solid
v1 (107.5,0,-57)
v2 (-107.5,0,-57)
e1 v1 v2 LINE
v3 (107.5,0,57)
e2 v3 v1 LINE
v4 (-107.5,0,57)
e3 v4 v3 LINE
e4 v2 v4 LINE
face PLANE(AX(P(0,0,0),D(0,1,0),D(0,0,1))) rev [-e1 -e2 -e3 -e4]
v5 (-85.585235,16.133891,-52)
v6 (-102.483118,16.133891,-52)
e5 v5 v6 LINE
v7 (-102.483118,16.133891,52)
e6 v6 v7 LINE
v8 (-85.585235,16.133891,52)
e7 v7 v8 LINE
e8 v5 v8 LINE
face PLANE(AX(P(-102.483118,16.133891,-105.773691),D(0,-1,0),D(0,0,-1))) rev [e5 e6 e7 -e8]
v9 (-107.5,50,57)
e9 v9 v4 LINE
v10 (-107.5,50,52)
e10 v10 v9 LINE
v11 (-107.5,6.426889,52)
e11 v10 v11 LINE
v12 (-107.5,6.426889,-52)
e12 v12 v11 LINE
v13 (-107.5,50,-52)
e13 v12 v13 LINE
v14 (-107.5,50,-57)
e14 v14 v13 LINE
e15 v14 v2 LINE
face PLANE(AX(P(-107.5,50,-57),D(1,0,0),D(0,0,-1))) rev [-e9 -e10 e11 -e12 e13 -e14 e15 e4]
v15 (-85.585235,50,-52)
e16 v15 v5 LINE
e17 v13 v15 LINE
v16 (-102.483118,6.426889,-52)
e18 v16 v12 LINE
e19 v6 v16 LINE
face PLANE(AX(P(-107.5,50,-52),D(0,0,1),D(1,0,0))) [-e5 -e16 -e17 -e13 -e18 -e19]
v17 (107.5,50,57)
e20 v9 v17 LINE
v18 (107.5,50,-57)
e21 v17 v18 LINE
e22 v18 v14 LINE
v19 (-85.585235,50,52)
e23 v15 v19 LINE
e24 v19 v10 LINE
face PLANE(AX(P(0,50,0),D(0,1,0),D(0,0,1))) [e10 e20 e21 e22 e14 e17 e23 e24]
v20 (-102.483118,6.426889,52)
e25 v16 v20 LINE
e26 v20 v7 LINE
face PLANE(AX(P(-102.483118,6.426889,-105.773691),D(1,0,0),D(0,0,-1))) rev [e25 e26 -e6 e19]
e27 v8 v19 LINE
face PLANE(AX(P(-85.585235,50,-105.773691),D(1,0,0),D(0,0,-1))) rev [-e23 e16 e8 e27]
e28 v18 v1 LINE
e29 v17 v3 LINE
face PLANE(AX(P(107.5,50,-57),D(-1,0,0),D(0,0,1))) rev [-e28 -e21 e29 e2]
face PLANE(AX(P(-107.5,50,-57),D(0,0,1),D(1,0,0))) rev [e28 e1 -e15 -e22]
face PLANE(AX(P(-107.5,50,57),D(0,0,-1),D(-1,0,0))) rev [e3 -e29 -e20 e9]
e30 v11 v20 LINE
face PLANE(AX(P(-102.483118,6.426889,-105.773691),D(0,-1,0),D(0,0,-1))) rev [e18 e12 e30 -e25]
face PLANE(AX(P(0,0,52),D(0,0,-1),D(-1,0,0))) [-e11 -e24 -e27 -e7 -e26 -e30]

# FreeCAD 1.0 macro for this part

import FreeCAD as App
import Part
import Sketcher


def add_polygon(sketch, points):
    """Adds a closed chain of lines whose ends are joined by coincident constraints."""
    first, n = sketch.GeometryCount, len(points)
    for a, b in zip(points, points[1:] + points[:1]):
        sketch.addGeometry(Part.LineSegment(App.Vector(*a, 0), App.Vector(*b, 0)), False)
    for i in range(n):
        sketch.addConstraint(Sketcher.Constraint("Coincident", first + i, 2, first + (i + 1) % n, 1))

doc = App.newDocument("Part")
body = doc.addObject("PartDesign::Body", "Body")

# Sketch on XZ plane
sketch1 = body.newObject("Sketcher::SketchObject", "Sketch")
sketch1.AttachmentSupport = (doc.getObject("XZ_Plane"), [""])
sketch1.MapMode = "FlatFace"
add_polygon(sketch1, [(-108, -57), (-108, 57), (108, 57), (108, -57)])  # lines 0-3
sketch1.addConstraint([
    Sketcher.Constraint("Vertical", 0),
    Sketcher.Constraint("Horizontal", 1),
    Sketcher.Constraint("Vertical", 2),
    Sketcher.Constraint("Horizontal", 3),
    Sketcher.Constraint("Symmetric", 0, 2, 2, 2, -1, 1),
    Sketcher.Constraint("DistanceX", 1, 1, 1, 2, 215.0),
    Sketcher.Constraint("DistanceY", 0, 1, 0, 2, 114.0),
])
pad1 = body.newObject("PartDesign::Pad", "Pad")
pad1.Profile = sketch1
pad1.Length = 50
pad1.Reversed = True

# Sketch on XY plane
sketch2 = body.newObject("Sketcher::SketchObject", "Sketch001")
sketch2.AttachmentSupport = (doc.getObject("XY_Plane"), [""])
sketch2.MapMode = "FlatFace"
sketch2.AttachmentOffset = App.Placement(App.Vector(0, 0, -52), App.Rotation())
add_polygon(sketch2, [(-86, 50), (-108, 50), (-108, 6), (-102, 6), (-102, 16), (-86, 16)])  # lines 0-5
sketch2.addConstraint([
    Sketcher.Constraint("Horizontal", 0),
    Sketcher.Constraint("Vertical", 1),
    Sketcher.Constraint("Horizontal", 2),
    Sketcher.Constraint("Vertical", 3),
    Sketcher.Constraint("Horizontal", 4),
    Sketcher.Constraint("Vertical", 5),
    Sketcher.Constraint("DistanceY", -1, 1, 0, 2, 50.0),
    Sketcher.Constraint("DistanceX", 0, 2, -1, 1, 107.5),
    Sketcher.Constraint("DistanceY", 3, 1, 3, 2, 9.707002),
    Sketcher.Constraint("DistanceY", 1, 2, 1, 1, 43.573111),
    Sketcher.Constraint("DistanceX", 0, 2, 0, 1, 21.914765),
    Sketcher.Constraint("DistanceX", 2, 1, 2, 2, 5.016882),
])
pocket1 = body.newObject("PartDesign::Pocket", "Pocket")
pocket1.Profile = sketch2
pocket1.Length = 104
pocket1.Reversed = True

doc.recompute()
